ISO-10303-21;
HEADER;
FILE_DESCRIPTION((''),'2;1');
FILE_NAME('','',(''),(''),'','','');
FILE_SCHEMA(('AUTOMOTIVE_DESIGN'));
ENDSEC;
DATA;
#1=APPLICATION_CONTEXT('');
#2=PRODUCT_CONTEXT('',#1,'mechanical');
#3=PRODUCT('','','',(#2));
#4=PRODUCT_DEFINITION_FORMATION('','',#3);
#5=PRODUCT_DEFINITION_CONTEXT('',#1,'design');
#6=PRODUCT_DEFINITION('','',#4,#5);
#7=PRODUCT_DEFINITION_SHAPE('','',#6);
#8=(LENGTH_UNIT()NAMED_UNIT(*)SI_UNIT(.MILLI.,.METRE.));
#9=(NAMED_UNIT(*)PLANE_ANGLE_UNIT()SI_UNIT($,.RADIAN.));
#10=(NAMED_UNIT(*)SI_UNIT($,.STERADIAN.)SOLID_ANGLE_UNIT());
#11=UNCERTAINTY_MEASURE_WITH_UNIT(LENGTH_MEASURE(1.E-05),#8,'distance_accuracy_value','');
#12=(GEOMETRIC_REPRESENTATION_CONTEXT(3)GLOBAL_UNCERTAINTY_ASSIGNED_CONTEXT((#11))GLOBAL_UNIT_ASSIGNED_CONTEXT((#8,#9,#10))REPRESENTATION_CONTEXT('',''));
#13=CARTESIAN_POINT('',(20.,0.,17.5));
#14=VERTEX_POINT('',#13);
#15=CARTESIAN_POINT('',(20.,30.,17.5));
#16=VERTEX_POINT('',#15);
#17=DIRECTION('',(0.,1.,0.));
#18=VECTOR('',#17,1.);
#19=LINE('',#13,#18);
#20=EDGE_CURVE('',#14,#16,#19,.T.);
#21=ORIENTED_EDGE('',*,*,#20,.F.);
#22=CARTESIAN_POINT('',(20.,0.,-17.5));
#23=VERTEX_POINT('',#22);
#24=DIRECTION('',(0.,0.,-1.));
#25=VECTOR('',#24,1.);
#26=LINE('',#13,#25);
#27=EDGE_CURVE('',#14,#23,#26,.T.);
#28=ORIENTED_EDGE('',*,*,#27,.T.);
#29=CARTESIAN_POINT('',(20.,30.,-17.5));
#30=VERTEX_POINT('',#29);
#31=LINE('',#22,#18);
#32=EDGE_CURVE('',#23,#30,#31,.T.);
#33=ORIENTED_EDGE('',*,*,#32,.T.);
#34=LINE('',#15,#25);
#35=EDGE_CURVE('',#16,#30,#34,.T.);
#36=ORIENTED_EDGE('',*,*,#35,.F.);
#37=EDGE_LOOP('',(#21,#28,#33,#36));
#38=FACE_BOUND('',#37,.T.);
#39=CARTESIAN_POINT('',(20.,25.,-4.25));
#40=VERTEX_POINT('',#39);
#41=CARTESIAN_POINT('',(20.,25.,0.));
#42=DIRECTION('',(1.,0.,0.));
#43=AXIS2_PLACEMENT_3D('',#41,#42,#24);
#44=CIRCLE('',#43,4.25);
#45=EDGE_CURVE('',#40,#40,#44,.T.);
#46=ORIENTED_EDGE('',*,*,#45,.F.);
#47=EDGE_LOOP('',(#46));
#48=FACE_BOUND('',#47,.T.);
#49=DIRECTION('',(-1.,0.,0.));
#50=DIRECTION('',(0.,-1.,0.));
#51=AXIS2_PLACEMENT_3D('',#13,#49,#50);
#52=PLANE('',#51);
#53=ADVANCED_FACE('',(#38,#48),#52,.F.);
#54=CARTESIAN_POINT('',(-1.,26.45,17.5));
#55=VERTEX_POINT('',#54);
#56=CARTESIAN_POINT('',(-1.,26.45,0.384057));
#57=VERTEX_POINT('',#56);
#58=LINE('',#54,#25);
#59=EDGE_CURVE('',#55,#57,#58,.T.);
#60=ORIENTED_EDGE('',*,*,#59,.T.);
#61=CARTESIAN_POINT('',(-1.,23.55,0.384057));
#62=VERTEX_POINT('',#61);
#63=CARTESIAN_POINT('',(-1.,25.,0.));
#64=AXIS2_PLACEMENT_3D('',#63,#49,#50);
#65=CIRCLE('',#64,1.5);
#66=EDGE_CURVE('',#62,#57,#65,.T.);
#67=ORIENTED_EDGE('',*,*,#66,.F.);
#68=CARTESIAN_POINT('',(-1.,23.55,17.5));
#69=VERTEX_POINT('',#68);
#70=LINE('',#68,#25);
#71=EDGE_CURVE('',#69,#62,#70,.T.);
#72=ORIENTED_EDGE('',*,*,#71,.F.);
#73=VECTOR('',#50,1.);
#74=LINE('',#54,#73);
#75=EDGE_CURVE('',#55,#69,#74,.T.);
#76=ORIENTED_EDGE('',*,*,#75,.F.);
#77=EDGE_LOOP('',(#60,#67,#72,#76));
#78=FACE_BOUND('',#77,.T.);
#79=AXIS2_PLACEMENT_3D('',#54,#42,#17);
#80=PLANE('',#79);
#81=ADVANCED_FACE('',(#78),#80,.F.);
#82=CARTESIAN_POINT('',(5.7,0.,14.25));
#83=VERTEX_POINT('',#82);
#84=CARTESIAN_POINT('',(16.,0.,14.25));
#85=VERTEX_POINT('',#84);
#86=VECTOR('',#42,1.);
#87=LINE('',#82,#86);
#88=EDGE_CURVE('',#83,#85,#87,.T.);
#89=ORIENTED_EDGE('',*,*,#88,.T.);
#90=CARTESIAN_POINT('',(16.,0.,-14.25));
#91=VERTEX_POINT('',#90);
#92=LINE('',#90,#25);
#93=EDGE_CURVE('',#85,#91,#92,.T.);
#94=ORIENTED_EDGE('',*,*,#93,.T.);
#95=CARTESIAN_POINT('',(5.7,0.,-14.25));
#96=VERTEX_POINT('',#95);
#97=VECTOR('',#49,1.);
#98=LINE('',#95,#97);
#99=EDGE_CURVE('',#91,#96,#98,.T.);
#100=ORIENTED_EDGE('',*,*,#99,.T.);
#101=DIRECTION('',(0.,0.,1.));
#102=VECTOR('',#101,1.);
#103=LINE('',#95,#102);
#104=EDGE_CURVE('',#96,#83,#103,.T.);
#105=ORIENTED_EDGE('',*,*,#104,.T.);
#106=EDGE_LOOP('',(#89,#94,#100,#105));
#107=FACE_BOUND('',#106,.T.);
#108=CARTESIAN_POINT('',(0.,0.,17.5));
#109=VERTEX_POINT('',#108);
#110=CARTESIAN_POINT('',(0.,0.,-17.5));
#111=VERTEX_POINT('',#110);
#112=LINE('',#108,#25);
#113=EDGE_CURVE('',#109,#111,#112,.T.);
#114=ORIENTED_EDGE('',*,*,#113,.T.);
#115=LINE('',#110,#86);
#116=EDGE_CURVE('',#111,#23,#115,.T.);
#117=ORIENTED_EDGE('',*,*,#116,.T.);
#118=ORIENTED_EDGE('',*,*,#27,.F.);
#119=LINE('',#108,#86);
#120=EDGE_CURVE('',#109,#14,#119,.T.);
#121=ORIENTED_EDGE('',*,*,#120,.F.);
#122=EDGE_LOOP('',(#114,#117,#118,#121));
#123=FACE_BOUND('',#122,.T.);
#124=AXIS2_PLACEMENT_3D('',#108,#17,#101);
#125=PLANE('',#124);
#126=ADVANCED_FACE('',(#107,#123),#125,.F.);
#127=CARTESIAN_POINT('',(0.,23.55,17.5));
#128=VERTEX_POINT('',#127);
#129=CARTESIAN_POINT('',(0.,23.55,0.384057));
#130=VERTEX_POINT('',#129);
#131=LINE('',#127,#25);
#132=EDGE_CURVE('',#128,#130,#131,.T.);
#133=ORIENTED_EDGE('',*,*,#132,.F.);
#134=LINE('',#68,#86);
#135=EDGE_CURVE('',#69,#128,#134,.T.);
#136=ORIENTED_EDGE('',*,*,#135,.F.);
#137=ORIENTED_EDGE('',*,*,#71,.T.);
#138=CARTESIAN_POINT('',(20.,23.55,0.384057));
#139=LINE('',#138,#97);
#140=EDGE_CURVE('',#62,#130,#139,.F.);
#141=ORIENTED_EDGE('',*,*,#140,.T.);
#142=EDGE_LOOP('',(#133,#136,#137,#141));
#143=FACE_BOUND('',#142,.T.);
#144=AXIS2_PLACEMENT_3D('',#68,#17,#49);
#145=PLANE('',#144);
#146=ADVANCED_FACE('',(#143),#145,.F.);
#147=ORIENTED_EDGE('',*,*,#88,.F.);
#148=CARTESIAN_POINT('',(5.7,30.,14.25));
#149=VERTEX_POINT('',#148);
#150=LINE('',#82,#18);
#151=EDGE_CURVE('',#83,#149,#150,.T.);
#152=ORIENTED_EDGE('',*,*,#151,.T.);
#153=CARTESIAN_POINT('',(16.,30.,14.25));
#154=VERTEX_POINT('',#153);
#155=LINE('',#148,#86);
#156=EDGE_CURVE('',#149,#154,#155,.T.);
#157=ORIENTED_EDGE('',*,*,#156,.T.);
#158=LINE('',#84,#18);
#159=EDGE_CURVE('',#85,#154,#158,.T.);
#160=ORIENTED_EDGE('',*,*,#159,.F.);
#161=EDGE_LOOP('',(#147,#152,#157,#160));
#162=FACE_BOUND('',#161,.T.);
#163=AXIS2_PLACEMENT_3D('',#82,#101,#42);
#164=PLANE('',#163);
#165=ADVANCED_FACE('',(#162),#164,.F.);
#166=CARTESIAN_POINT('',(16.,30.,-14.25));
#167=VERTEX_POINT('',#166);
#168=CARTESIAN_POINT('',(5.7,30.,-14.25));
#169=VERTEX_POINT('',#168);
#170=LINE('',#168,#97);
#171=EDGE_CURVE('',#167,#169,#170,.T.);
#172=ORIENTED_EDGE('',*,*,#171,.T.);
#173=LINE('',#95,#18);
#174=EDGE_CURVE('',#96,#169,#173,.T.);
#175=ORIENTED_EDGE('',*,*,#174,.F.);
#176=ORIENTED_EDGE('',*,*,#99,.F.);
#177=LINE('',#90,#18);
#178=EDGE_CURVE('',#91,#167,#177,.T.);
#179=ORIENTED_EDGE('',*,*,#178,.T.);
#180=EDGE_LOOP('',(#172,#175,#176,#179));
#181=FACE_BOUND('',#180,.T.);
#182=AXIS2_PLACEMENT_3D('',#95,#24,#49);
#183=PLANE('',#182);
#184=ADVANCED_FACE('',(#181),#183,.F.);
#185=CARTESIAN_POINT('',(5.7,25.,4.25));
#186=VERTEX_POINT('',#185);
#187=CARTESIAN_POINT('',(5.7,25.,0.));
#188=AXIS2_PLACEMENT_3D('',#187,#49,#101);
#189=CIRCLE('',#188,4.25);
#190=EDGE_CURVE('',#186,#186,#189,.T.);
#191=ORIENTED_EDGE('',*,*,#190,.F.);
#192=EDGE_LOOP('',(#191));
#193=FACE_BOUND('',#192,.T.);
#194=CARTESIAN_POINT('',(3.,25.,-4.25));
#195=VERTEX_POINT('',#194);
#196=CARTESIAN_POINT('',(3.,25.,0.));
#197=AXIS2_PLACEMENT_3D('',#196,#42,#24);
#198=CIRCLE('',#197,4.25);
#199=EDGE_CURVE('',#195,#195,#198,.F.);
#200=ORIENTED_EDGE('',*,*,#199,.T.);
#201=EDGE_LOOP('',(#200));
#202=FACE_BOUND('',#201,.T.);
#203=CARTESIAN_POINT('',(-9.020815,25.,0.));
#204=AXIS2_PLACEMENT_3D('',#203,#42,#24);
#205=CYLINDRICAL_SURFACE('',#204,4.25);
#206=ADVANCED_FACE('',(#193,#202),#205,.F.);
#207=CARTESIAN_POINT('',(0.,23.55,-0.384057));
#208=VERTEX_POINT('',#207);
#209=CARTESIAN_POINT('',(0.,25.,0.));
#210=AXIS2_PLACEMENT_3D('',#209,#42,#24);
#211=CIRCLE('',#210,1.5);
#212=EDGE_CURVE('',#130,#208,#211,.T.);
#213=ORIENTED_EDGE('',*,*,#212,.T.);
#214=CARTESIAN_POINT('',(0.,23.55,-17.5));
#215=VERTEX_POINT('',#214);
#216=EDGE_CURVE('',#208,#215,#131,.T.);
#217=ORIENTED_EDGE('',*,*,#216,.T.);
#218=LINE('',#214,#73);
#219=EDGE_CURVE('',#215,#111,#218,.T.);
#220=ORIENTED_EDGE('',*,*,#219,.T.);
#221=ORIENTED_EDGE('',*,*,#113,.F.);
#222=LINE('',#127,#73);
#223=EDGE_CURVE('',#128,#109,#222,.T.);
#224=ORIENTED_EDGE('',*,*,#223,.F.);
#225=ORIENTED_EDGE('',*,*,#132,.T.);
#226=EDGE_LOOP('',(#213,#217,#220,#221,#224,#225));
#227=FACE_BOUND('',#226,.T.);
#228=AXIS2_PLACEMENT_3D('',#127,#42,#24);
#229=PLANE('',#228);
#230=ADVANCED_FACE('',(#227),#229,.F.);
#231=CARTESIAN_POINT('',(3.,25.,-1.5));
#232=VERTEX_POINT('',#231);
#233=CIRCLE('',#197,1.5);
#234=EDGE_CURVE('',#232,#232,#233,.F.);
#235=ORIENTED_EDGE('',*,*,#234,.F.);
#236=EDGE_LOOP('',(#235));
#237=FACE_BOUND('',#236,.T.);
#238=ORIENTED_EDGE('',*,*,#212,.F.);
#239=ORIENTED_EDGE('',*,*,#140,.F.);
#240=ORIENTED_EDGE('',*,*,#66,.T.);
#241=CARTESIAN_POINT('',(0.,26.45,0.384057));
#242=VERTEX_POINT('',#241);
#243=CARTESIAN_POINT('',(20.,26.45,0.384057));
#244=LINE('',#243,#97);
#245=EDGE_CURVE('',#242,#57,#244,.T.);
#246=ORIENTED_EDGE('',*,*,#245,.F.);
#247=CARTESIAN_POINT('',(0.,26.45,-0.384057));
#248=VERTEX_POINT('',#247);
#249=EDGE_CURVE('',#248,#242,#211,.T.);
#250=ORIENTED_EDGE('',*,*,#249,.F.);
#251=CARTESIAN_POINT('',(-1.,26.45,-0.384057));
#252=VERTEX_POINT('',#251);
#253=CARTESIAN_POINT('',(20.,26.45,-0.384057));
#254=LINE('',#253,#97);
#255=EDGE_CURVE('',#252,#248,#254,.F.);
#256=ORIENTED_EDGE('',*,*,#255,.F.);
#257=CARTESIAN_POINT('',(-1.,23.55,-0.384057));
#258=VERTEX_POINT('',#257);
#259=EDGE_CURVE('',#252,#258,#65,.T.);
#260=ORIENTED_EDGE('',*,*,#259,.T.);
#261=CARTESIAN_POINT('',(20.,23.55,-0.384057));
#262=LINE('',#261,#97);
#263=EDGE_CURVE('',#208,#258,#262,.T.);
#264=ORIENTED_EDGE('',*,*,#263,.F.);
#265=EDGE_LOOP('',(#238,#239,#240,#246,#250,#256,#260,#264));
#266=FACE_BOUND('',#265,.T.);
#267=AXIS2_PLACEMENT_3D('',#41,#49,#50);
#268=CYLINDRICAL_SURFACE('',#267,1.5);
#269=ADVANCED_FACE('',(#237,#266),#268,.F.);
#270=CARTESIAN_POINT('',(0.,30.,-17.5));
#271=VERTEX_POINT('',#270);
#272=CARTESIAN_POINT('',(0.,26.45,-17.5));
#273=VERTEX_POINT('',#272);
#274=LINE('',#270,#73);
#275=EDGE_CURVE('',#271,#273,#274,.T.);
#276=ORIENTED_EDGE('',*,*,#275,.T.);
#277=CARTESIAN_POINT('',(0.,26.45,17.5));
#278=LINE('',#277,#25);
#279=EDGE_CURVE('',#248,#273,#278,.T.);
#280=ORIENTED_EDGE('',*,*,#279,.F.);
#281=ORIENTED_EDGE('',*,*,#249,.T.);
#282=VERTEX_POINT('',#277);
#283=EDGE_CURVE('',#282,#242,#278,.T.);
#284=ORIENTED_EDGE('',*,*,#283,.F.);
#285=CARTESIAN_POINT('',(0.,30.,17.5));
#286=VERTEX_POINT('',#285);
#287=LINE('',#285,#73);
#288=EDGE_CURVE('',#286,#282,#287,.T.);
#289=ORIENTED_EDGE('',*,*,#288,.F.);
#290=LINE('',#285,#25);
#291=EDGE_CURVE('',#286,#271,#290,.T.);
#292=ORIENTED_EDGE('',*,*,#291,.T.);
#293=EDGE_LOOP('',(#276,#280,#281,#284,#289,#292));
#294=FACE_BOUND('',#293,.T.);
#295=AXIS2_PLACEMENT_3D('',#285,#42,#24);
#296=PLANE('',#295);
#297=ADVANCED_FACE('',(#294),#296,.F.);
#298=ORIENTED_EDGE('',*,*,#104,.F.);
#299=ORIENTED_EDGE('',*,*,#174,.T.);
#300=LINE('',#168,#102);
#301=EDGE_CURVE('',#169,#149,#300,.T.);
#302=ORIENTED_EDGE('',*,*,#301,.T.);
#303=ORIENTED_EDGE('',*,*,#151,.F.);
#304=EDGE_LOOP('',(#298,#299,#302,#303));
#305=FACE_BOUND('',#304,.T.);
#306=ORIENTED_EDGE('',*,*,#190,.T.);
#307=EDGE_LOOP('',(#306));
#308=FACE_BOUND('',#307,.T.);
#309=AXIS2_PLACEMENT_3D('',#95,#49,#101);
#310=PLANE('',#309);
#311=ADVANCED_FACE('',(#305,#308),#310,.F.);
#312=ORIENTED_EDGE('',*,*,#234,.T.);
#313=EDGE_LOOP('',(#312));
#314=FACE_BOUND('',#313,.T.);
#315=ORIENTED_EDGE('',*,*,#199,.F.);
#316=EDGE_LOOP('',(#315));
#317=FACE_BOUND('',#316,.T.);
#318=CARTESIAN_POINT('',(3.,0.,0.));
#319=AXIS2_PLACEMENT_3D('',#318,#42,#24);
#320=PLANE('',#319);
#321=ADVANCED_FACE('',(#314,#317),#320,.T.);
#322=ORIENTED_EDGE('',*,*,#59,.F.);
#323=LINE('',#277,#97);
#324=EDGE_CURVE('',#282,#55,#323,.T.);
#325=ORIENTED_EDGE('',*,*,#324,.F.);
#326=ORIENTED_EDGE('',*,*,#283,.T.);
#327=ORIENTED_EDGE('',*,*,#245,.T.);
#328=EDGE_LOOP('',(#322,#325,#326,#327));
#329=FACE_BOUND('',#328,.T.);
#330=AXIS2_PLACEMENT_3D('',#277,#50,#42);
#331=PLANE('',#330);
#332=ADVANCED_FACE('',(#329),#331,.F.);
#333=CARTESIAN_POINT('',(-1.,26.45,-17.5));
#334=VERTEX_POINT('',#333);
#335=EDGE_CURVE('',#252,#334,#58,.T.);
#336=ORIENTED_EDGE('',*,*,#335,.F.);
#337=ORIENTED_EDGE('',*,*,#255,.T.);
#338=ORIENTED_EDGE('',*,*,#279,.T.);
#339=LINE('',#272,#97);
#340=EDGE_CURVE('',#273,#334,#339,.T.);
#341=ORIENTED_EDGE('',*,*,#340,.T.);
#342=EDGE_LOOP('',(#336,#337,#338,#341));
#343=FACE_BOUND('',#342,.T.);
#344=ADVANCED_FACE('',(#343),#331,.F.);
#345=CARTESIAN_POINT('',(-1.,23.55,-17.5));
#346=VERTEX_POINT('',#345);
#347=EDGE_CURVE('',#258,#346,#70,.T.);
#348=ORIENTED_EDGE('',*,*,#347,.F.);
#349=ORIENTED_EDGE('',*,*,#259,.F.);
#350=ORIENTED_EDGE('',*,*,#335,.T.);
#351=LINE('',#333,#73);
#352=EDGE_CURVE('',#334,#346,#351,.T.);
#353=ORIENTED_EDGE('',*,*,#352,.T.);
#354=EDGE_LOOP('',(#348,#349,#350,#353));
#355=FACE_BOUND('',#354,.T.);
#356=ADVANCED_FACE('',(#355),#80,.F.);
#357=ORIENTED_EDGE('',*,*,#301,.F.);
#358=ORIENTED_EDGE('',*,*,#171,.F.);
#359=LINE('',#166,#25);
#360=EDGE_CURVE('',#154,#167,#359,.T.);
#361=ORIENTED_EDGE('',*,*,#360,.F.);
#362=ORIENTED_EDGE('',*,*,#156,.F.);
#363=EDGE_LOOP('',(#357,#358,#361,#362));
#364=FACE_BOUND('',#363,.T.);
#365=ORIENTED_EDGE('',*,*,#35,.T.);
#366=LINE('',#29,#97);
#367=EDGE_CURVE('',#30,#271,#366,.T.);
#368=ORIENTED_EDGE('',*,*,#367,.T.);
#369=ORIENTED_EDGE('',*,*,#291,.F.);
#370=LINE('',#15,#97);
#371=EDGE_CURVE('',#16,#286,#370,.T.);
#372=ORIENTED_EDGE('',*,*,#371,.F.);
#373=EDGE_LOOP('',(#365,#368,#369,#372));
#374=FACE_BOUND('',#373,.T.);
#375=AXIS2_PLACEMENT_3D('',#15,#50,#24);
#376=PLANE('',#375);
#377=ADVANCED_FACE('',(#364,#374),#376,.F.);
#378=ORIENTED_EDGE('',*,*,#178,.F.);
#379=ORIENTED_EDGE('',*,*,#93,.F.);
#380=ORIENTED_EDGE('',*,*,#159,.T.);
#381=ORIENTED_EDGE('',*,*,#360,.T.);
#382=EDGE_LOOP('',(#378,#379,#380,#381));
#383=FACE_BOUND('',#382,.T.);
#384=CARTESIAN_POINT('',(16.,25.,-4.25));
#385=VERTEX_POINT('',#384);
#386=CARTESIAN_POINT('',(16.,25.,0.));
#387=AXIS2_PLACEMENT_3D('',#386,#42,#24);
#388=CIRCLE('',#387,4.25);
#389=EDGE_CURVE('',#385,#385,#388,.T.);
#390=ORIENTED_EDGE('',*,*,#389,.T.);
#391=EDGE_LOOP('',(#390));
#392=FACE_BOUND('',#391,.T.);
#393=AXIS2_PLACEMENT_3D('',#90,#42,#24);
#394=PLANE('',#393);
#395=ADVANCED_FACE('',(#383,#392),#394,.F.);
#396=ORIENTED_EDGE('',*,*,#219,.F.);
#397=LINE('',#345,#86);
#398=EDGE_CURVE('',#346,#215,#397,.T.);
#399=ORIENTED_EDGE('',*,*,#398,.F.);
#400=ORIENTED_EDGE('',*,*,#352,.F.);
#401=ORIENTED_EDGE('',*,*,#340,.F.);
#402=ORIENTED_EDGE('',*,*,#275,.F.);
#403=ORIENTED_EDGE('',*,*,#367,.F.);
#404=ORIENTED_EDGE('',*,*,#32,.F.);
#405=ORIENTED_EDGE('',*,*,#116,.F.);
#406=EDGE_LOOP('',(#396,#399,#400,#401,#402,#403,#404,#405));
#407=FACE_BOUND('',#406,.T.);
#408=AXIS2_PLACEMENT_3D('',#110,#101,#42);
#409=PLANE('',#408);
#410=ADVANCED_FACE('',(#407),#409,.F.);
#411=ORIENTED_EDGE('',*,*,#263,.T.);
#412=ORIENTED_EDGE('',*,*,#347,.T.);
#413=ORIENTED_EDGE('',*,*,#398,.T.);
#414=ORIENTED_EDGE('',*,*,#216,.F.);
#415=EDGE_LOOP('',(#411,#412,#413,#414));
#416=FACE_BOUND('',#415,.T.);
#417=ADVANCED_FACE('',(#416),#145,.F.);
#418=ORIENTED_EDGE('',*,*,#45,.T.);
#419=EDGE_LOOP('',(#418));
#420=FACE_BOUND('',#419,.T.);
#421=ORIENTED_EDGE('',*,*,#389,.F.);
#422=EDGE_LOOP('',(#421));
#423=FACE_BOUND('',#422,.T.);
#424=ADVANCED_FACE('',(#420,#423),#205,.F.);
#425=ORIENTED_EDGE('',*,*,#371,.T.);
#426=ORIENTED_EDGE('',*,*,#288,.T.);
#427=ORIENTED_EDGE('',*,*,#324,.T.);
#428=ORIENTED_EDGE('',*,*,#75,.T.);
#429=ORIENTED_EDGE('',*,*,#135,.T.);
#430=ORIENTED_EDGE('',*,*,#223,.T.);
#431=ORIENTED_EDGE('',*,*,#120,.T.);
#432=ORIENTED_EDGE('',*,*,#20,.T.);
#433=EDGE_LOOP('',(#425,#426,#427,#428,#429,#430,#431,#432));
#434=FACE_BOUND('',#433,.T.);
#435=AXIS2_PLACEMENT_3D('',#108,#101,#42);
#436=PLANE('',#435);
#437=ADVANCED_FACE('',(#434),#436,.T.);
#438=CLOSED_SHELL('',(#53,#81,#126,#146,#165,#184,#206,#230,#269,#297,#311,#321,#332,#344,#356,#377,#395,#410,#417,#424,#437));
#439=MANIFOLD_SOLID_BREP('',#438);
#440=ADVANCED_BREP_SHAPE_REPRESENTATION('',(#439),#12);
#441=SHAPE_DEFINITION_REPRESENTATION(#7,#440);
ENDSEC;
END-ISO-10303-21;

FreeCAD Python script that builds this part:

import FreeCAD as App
import Part
import Sketcher
from FreeCAD import Vector
Q = App.Units.Quantity


def add_polygon(sketch, points):
    """Adds a closed chain of lines whose ends are joined by coincident constraints."""
    first, n = sketch.GeometryCount, len(points)
    for a, b in zip(points, points[1:] + points[:1]):
        sketch.addGeometry(Part.LineSegment(App.Vector(*a, 0), App.Vector(*b, 0)), False)
    for i in range(n):
        sketch.addConstraint(Sketcher.Constraint("Coincident", first + i, 2, first + (i + 1) % n, 1))

doc = App.newDocument("Part")
body = doc.addObject("PartDesign::Body", "Body")

sketch1 = body.newObject("Sketcher::SketchObject", "Sketch")
sketch1.AttachmentSupport = (doc.getObject("XY_Plane"), [""])
sketch1.MapMode = "FlatFace"
add_polygon(sketch1, [(-1, 26.4), (-1, 23.6), (0, 23.6), (0, 0), (20, 0), (20, 30), (0, 30), (0, 26.4)])
sketch1.addConstraint(Sketcher.Constraint("Vertical", 0))
sketch1.addConstraint(Sketcher.Constraint("Horizontal", 1))
sketch1.addConstraint(Sketcher.Constraint("Vertical", 2))
sketch1.addConstraint(Sketcher.Constraint("Horizontal", 3))
sketch1.addConstraint(Sketcher.Constraint("Vertical", 4))
sketch1.addConstraint(Sketcher.Constraint("Horizontal", 5))
sketch1.addConstraint(Sketcher.Constraint("Vertical", 6))
sketch1.addConstraint(Sketcher.Constraint("Horizontal", 7))
sketch1.addConstraint(Sketcher.Constraint("Coincident", 2, 2, -1, 1))
sketch1.addConstraint(Sketcher.Constraint("PointOnObject", 5, 2, -2))
sketch1.addConstraint(Sketcher.Constraint("DistanceX", 1, 1, 1, 2, Q("1 mm")))
sketch1.addConstraint(Sketcher.Constraint("DistanceX", 3, 1, 3, 2, Q("20 mm")))
sketch1.addConstraint(Sketcher.Constraint("DistanceY", 4, 1, 4, 2, Q("30 mm")))
sketch1.addConstraint(Sketcher.Constraint("DistanceY", 0, 2, 0, 1, Q("2.9 mm")))
sketch1.addConstraint(Sketcher.Constraint("DistanceY", 2, 2, 2, 1, Q("23.55 mm")))
pad1 = body.newObject("PartDesign::Pad", "Pad")
pad1.Profile = sketch1
pad1.Length = 35
pad1.Midplane = True

sketch2 = body.newObject("Sketcher::SketchObject", "Sketch001")
sketch2.AttachmentSupport = (doc.getObject("XZ_Plane"), [""])
sketch2.MapMode = "FlatFace"
sketch2.AttachmentOffset = App.Placement(Vector(0, 0, -30), App.Rotation())
add_polygon(sketch2, [(6, -14), (6, 14), (16, 14), (16, -14)])
sketch2.addConstraint(Sketcher.Constraint("Vertical", 0))
sketch2.addConstraint(Sketcher.Constraint("Horizontal", 1))
sketch2.addConstraint(Sketcher.Constraint("Vertical", 2))
sketch2.addConstraint(Sketcher.Constraint("Horizontal", 3))
sketch2.addConstraint(Sketcher.Constraint("DistanceX", 1, 1, 1, 2, Q("10.3 mm")))
sketch2.addConstraint(Sketcher.Constraint("DistanceY", 0, 1, 0, 2, Q("28.5 mm")))
sketch2.addConstraint(Sketcher.Constraint("DistanceX", -1, 1, 1, 2, Q("16 mm")))
sketch2.addConstraint(Sketcher.Constraint("DistanceY", -1, 1, 0, 2, Q("14.25 mm")))
pocket1 = body.newObject("PartDesign::Pocket", "Pocket")
pocket1.Profile = sketch2
pocket1.Type = "ThroughAll"
pocket1.Reversed = True

sketch3 = body.newObject("Sketcher::SketchObject", "Sketch002")
sketch3.AttachmentSupport = (doc.getObject("YZ_Plane"), [""])
sketch3.MapMode = "FlatFace"
sketch3.AttachmentOffset = App.Placement(Vector(0, 0, -1), App.Rotation())
sketch3.addGeometry(Part.Circle(Vector(25, 0, 0), Vector(0, 0, 1), 1.5), False)
sketch3.addConstraint(Sketcher.Constraint("PointOnObject", 0, 3, -1))
sketch3.addConstraint(Sketcher.Constraint("Diameter", 0, Q("3 mm")))
sketch3.addConstraint(Sketcher.Constraint("DistanceX", -1, 1, 0, 3, Q("25 mm")))
pocket2 = body.newObject("PartDesign::Pocket", "Pocket001")
pocket2.Profile = sketch3
pocket2.Type = "ThroughAll"
pocket2.Reversed = True

sketch4 = body.newObject("Sketcher::SketchObject", "Sketch003")
sketch4.AttachmentSupport = (doc.getObject("YZ_Plane"), [""])
sketch4.MapMode = "FlatFace"
sketch4.AttachmentOffset = App.Placement(Vector(0, 0, 3), App.Rotation())
sketch4.addGeometry(Part.Circle(Vector(25, 0, 0), Vector(0, 0, 1), 4.2), False)
sketch4.addConstraint(Sketcher.Constraint("PointOnObject", 0, 3, -1))
sketch4.addConstraint(Sketcher.Constraint("Diameter", 0, Q("8.5 mm")))
sketch4.addConstraint(Sketcher.Constraint("DistanceX", -1, 1, 0, 3, Q("25 mm")))
pocket3 = body.newObject("PartDesign::Pocket", "Pocket002")
pocket3.Profile = sketch4
pocket3.Length = 17
pocket3.Reversed = True

doc.recompute()
